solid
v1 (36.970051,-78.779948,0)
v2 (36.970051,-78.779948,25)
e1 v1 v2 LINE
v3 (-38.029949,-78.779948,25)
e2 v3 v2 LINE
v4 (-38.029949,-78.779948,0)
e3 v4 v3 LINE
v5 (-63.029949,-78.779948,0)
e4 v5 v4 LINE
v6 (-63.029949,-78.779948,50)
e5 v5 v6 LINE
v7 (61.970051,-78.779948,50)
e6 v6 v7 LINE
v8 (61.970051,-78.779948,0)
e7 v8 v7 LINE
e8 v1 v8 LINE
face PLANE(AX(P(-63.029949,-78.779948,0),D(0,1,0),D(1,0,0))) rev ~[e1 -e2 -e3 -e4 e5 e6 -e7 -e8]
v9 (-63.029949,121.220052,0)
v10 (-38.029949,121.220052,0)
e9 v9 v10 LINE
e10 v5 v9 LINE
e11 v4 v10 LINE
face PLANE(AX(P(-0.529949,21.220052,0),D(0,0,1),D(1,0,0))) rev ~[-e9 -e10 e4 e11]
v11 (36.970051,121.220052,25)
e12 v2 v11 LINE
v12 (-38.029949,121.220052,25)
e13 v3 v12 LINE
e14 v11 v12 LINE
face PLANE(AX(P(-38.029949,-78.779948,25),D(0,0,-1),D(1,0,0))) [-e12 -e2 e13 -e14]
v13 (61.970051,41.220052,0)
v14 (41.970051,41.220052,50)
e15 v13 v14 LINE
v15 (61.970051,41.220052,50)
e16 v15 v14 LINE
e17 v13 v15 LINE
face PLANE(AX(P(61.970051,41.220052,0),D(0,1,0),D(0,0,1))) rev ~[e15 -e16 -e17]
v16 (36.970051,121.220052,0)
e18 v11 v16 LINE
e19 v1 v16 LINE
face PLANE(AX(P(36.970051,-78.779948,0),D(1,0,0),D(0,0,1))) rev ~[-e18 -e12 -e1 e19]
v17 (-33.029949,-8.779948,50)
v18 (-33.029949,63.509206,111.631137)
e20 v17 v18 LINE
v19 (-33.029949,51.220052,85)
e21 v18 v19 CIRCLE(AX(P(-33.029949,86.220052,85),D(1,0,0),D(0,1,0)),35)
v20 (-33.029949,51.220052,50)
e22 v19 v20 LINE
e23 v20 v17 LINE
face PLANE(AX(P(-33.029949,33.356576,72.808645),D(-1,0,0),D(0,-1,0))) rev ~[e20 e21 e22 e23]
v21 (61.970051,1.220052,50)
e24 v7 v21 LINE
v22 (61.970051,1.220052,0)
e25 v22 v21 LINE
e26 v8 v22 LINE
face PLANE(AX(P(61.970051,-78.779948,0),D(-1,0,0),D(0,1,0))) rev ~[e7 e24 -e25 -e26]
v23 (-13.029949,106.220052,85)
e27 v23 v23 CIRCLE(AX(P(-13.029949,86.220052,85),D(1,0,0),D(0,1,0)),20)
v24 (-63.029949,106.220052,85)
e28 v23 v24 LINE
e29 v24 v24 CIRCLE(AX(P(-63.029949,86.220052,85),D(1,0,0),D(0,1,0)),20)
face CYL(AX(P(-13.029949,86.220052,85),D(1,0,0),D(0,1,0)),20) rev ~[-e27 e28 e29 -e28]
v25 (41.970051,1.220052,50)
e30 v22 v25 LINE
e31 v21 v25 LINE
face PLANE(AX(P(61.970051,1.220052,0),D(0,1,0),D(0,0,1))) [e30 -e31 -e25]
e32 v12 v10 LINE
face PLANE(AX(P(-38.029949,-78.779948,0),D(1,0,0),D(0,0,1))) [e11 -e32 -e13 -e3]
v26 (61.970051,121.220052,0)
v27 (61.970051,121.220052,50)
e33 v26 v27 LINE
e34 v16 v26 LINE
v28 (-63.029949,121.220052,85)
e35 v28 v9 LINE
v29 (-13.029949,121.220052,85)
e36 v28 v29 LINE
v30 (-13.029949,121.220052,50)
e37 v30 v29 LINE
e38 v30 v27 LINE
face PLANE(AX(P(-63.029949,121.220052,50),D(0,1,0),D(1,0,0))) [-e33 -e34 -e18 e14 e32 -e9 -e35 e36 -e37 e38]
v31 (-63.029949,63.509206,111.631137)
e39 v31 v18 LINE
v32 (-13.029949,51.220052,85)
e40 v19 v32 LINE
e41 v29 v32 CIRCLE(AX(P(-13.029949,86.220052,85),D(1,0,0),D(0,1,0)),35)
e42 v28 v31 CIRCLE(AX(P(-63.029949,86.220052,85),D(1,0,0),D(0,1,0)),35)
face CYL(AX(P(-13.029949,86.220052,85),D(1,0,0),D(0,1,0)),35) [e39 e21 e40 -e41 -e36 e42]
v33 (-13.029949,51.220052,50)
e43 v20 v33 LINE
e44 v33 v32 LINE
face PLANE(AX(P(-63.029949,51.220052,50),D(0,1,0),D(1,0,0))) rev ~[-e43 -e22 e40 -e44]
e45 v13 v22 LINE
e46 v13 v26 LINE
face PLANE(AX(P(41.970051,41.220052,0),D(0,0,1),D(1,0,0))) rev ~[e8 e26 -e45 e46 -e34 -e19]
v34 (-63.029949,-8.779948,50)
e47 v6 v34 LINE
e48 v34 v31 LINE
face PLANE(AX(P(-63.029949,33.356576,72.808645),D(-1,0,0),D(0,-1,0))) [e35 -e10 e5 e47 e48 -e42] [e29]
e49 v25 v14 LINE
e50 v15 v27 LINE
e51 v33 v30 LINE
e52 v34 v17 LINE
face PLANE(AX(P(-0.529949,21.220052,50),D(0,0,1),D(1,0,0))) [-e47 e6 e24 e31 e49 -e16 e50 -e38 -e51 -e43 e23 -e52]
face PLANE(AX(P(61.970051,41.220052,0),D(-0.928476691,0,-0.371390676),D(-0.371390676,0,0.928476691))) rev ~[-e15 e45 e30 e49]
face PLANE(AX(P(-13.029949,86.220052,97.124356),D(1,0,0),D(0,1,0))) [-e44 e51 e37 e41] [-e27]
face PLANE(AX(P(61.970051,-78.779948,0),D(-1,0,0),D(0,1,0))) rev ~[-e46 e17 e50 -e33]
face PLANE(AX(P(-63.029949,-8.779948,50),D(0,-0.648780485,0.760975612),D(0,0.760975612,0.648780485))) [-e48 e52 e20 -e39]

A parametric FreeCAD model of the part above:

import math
import FreeCAD as App
import Part
import Sketcher

V = App.Vector
Q = App.Units.Quantity


def add_polygon(sketch, points):
    """Adds a closed chain of lines whose ends are joined by coincident constraints."""
    first, n = sketch.GeometryCount, len(points)
    for a, b in zip(points, points[1:] + points[:1]):
        sketch.addGeometry(Part.LineSegment(App.Vector(*a, 0), App.Vector(*b, 0)), False)
    for i in range(n):
        sketch.addConstraint(Sketcher.Constraint("Coincident", first + i, 2, first + (i + 1) % n, 1))

doc = App.newDocument("Part")
body = doc.addObject("PartDesign::Body", "Body")

sketch1 = body.newObject("Sketcher::SketchObject", "Sketch")
sketch1.AttachmentSupport = (doc.getObject("XY_Plane"), [""])
sketch1.MapMode = "FlatFace"
add_polygon(sketch1, [(-63.029949, 121.220052), (-63.029949, -78.779948), (61.970051, -78.779948), (61.970051, 121.220052)])
sketch1.addConstraint([
    Sketcher.Constraint("Vertical", 0),
    Sketcher.Constraint("Horizontal", 1),
    Sketcher.Constraint("Vertical", 2),
    Sketcher.Constraint("Horizontal", 3),
    Sketcher.Constraint("DistanceX", 1, 1, 1, 2, Q("125 mm")),
    Sketcher.Constraint("DistanceY", 0, 2, 0, 1, Q("200 mm")),
    Sketcher.Constraint("DistanceX", 0, 2, -1, 1, Q("63.029949 mm")),
    Sketcher.Constraint("DistanceY", 0, 2, -1, 1, Q("78.779948 mm")),
])
pad1 = body.newObject("PartDesign::Pad", "Pad")
pad1.Profile = sketch1
pad1.Length = 50

sketch2 = body.newObject("Sketcher::SketchObject", "Sketch001")
sketch2.AttachmentSupport = (doc.getObject("XY_Plane"), [""])
sketch2.MapMode = "FlatFace"
sketch2.AttachmentOffset = App.Placement(V(0, 0, 50), App.Rotation())
add_polygon(sketch2, [(-63.029949, 121.220052), (-63.029949, 51.220052), (-13.029949, 51.220052), (-13.029949, 121.220052)])
sketch2.addConstraint([
    Sketcher.Constraint("Vertical", 0),
    Sketcher.Constraint("Horizontal", 1),
    Sketcher.Constraint("Vertical", 2),
    Sketcher.Constraint("Horizontal", 3),
    Sketcher.Constraint("DistanceX", 1, 1, 1, 2, Q("50 mm")),
    Sketcher.Constraint("DistanceY", 0, 2, 0, 1, Q("70 mm")),
    Sketcher.Constraint("DistanceX", 0, 2, -1, 1, Q("63.029949 mm")),
    Sketcher.Constraint("DistanceY", -1, 1, 2, 2, Q("121.220052 mm")),
])
pad2 = body.newObject("PartDesign::Pad", "Pad001")
pad2.Profile = sketch2
pad2.Length = 35

sketch3 = body.newObject("Sketcher::SketchObject", "Sketch002")
sketch3.AttachmentSupport = (doc.getObject("YZ_Plane"), [""])
sketch3.MapMode = "FlatFace"
sketch3.AttachmentOffset = App.Placement(V(0, 0, -13.029949), App.Rotation())
sketch3.addGeometry([
    Part.LineSegment(V(51.220052, 85, 0), V(121.220052, 85, 0)),
    Part.ArcOfCircle(Part.Circle(V(86.220052, 85, 0), V(0, 0, 1), 35), math.radians(0), math.radians(180)),
], False)
sketch3.addConstraint([
    Sketcher.Constraint("Coincident", 0, 1, 1, 2),
    Sketcher.Constraint("Coincident", 1, 1, 0, 2),
    Sketcher.Constraint("Horizontal", 0),
    Sketcher.Constraint("Horizontal", 1, 3, 0, 1),
    Sketcher.Constraint("Radius", 1, Q("35 mm")),
    Sketcher.Constraint("DistanceY", -1, 1, 1, 3, Q("85 mm")),
    Sketcher.Constraint("DistanceX", -1, 1, 1, 3, Q("86.220052 mm")),
])
pad3 = body.newObject("PartDesign::Pad", "Pad002")
pad3.Profile = sketch3
pad3.Length = 50
pad3.Reversed = True

sketch4 = body.newObject("Sketcher::SketchObject", "Sketch003")
sketch4.AttachmentSupport = (doc.getObject("YZ_Plane"), [""])
sketch4.MapMode = "FlatFace"
sketch4.AttachmentOffset = App.Placement(V(0, 0, -13.029949), App.Rotation())
sketch4.addGeometry(Part.Circle(V(86.220052, 85, 0), V(0, 0, 1), 20), False)
sketch4.addConstraint([
    Sketcher.Constraint("Diameter", 0, Q("40 mm")),
    Sketcher.Constraint("DistanceY", -1, 1, 0, 3, Q("85 mm")),
    Sketcher.Constraint("DistanceX", -1, 1, 0, 3, Q("86.220052 mm")),
])
pocket1 = body.newObject("PartDesign::Pocket", "Pocket")
pocket1.Profile = sketch4
pocket1.Type = "ThroughAll"

sketch5 = body.newObject("Sketcher::SketchObject", "Sketch004")
sketch5.AttachmentSupport = (doc.getObject("YZ_Plane"), [""])
sketch5.MapMode = "FlatFace"
sketch5.AttachmentOffset = App.Placement(V(0, 0, -63.029949), App.Rotation())
sketch5.addGeometry([
    Part.LineSegment(V(51.220052, 50, 0), V(-8.779948, 50, 0)),
    Part.LineSegment(V(-8.779948, 50, 0), V(63.512735, 111.634146, 0)),
    Part.ArcOfCircle(Part.Circle(V(86.220055, 84.999998, 0), V(0, 0, 1), 35.000003), math.radians(130.449721), math.radians(179.999997)),
    Part.LineSegment(V(51.220052, 85, 0), V(51.220052, 50, 0)),
], False)
sketch5.addConstraint([
    Sketcher.Constraint("Coincident", 0, 2, 1, 1),
    Sketcher.Constraint("Tangent", 1, 2, 2, 1),
    Sketcher.Constraint("Tangent", 2, 2, 3, 1),
    Sketcher.Constraint("Coincident", 3, 2, 0, 1),
    Sketcher.Constraint("Horizontal", 0),
    Sketcher.Constraint("Vertical", 3),
    Sketcher.Constraint("DistanceX", 0, 2, 0, 1, Q("60 mm")),
    Sketcher.Constraint("DistanceY", 3, 2, 3, 1, Q("35 mm")),
    Sketcher.Constraint("Distance", 1, Q("95 mm")),
    Sketcher.Constraint("DistanceY", -1, 1, 2, 3, Q("84.999998 mm")),
    Sketcher.Constraint("DistanceX", -1, 1, 2, 3, Q("86.220055 mm")),
])
pad4 = body.newObject("PartDesign::Pad", "Pad003")
pad4.Profile = sketch5
pad4.Length = 30

sketch6 = body.newObject("Sketcher::SketchObject", "Sketch005")
sketch6.AttachmentSupport = (doc.getObject("XZ_Plane"), [""])
sketch6.MapMode = "FlatFace"
sketch6.AttachmentOffset = App.Placement(V(0, 0, 78.779948), App.Rotation())
add_polygon(sketch6, [(-38.029949, 25), (-38.029949, 0), (36.970051, 0), (36.970051, 25)])
sketch6.addConstraint([
    Sketcher.Constraint("Vertical", 0),
    Sketcher.Constraint("Horizontal", 1),
    Sketcher.Constraint("Vertical", 2),
    Sketcher.Constraint("Horizontal", 3),
    Sketcher.Constraint("PointOnObject", 0, 2, -1),
    Sketcher.Constraint("DistanceX", 1, 1, 1, 2, Q("75 mm")),
    Sketcher.Constraint("DistanceY", 0, 2, 0, 1, Q("25 mm")),
    Sketcher.Constraint("DistanceX", 0, 2, -1, 1, Q("38.029949 mm")),
])
pocket2 = body.newObject("PartDesign::Pocket", "Pocket001")
pocket2.Profile = sketch6
pocket2.Type = "ThroughAll"

sketch7 = body.newObject("Sketcher::SketchObject", "Sketch006")
sketch7.AttachmentSupport = (doc.getObject("YZ_Plane"), [""])
sketch7.MapMode = "FlatFace"
sketch7.AttachmentOffset = App.Placement(V(0, 0, 61.970051), App.Rotation())
add_polygon(sketch7, [(1.220052, 50), (1.220052, 0), (41.220052, 0), (41.220052, 50)])
sketch7.addConstraint([
    Sketcher.Constraint("Vertical", 0),
    Sketcher.Constraint("Horizontal", 1),
    Sketcher.Constraint("Vertical", 2),
    Sketcher.Constraint("Horizontal", 3),
    Sketcher.Constraint("PointOnObject", 0, 2, -1),
    Sketcher.Constraint("DistanceX", 1, 1, 1, 2, Q("40 mm")),
    Sketcher.Constraint("DistanceY", 0, 2, 0, 1, Q("50 mm")),
    Sketcher.Constraint("DistanceX", -1, 1, 0, 2, Q("1.220052 mm")),
])
pocket3 = body.newObject("PartDesign::Pocket", "Pocket002")
pocket3.Profile = sketch7
pocket3.Length = 20

sketch8 = body.newObject("Sketcher::SketchObject", "Sketch007")
sketch8.AttachmentSupport = (doc.getObject("XZ_Plane"), [""])
sketch8.MapMode = "FlatFace"
sketch8.AttachmentOffset = App.Placement(V(0, 0, -41.220052), App.Rotation())
add_polygon(sketch8, [(61.970051, 0), (41.970051, 50), (41.970051, 0)])
sketch8.addConstraint([
    Sketcher.Constraint("Vertical", 1),
    Sketcher.Constraint("Horizontal", 2),
    Sketcher.Constraint("PointOnObject", 1, 2, -1),
    Sketcher.Constraint("DistanceX", 2, 1, 2, 2, Q("20 mm")),
    Sketcher.Constraint("DistanceY", 1, 2, 1, 1, Q("50 mm")),
    Sketcher.Constraint("DistanceX", -1, 1, 0, 2, Q("41.970051 mm")),
])
pad5 = body.newObject("PartDesign::Pad", "Pad004")
pad5.Profile = sketch8
pad5.Length = 40

doc.recompute()
